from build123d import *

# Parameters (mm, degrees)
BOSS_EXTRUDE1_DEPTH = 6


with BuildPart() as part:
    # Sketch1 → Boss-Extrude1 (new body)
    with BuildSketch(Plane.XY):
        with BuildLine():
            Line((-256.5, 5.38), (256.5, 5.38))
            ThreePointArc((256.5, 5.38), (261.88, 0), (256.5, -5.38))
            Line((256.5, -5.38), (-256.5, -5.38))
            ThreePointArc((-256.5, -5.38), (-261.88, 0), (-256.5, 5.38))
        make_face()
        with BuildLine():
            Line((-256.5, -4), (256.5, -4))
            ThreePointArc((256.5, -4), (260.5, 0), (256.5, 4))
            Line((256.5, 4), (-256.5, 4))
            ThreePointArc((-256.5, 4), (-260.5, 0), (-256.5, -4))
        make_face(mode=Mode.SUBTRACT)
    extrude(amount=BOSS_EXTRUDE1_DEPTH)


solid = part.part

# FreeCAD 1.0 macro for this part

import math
import FreeCAD as App
import Part
import Sketcher
from FreeCAD import Vector

doc = App.newDocument("Part")
body = doc.addObject("PartDesign::Body", "Body")

sketch1 = body.newObject("Sketcher::SketchObject", "Sketch")
sketch1.AttachmentSupport = (doc.getObject("XY_Plane"), [""])
sketch1.MapMode = "FlatFace"
sketch1.addGeometry([
    Part.LineSegment(Vector(256.5, 5.38, 0), Vector(-256.5, 5.38, 0)),
    Part.ArcOfCircle(Part.Circle(Vector(-256.5, 0, 0), Vector(0, 0, 1), 5.38), math.radians(90), math.radians(270)),
    Part.LineSegment(Vector(-256.5, -5.38, 0), Vector(256.5, -5.38, 0)),
    Part.ArcOfCircle(Part.Circle(Vector(256.5, 0, 0), Vector(0, 0, 1), 5.38), math.radians(-90), math.radians(90)),
    Part.ArcOfCircle(Part.Circle(Vector(-256.5, 0, 0), Vector(0, 0, 1), 4), math.radians(90), math.radians(270)),
    Part.LineSegment(Vector(-256.5, 4, 0), Vector(256.5, 4, 0)),
    Part.ArcOfCircle(Part.Circle(Vector(256.5, 0, 0), Vector(0, 0, 1), 4), math.radians(-90), math.radians(90)),
    Part.LineSegment(Vector(256.5, -4, 0), Vector(-256.5, -4, 0)),
], False)
sketch1.addConstraint([
    Sketcher.Constraint("Tangent", 0, 2, 1, 1),
    Sketcher.Constraint("Tangent", 1, 2, 2, 1),
    Sketcher.Constraint("Tangent", 2, 2, 3, 1),
    Sketcher.Constraint("Tangent", 3, 2, 0, 1),
    Sketcher.Constraint("Tangent", 4, 1, 5, 1),
    Sketcher.Constraint("Tangent", 5, 2, 6, 2),
    Sketcher.Constraint("Tangent", 6, 1, 7, 1),
    Sketcher.Constraint("Tangent", 7, 2, 4, 2),
    Sketcher.Constraint("Horizontal", 0),
    Sketcher.Constraint("Horizontal", 2),
    Sketcher.Constraint("Horizontal", 5),
    Sketcher.Constraint("Horizontal", 7),
    Sketcher.Constraint("Coincident", 4, 3, 1, 3),
    Sketcher.Constraint("Symmetric", 1, 3, 3, 3, -1, 1),
    Sketcher.Constraint("Vertical", 6, 3, 2, 2),
    Sketcher.Constraint("Radius", 4, 4.0),
    Sketcher.Constraint("DistanceX", 0, 2, 0, 1, 513.0),
    Sketcher.Constraint("Radius", 1, 5.38),
])
pad1 = body.newObject("PartDesign::Pad", "Pad")
pad1.Profile = sketch1
pad1.Length = 6

doc.recompute()
